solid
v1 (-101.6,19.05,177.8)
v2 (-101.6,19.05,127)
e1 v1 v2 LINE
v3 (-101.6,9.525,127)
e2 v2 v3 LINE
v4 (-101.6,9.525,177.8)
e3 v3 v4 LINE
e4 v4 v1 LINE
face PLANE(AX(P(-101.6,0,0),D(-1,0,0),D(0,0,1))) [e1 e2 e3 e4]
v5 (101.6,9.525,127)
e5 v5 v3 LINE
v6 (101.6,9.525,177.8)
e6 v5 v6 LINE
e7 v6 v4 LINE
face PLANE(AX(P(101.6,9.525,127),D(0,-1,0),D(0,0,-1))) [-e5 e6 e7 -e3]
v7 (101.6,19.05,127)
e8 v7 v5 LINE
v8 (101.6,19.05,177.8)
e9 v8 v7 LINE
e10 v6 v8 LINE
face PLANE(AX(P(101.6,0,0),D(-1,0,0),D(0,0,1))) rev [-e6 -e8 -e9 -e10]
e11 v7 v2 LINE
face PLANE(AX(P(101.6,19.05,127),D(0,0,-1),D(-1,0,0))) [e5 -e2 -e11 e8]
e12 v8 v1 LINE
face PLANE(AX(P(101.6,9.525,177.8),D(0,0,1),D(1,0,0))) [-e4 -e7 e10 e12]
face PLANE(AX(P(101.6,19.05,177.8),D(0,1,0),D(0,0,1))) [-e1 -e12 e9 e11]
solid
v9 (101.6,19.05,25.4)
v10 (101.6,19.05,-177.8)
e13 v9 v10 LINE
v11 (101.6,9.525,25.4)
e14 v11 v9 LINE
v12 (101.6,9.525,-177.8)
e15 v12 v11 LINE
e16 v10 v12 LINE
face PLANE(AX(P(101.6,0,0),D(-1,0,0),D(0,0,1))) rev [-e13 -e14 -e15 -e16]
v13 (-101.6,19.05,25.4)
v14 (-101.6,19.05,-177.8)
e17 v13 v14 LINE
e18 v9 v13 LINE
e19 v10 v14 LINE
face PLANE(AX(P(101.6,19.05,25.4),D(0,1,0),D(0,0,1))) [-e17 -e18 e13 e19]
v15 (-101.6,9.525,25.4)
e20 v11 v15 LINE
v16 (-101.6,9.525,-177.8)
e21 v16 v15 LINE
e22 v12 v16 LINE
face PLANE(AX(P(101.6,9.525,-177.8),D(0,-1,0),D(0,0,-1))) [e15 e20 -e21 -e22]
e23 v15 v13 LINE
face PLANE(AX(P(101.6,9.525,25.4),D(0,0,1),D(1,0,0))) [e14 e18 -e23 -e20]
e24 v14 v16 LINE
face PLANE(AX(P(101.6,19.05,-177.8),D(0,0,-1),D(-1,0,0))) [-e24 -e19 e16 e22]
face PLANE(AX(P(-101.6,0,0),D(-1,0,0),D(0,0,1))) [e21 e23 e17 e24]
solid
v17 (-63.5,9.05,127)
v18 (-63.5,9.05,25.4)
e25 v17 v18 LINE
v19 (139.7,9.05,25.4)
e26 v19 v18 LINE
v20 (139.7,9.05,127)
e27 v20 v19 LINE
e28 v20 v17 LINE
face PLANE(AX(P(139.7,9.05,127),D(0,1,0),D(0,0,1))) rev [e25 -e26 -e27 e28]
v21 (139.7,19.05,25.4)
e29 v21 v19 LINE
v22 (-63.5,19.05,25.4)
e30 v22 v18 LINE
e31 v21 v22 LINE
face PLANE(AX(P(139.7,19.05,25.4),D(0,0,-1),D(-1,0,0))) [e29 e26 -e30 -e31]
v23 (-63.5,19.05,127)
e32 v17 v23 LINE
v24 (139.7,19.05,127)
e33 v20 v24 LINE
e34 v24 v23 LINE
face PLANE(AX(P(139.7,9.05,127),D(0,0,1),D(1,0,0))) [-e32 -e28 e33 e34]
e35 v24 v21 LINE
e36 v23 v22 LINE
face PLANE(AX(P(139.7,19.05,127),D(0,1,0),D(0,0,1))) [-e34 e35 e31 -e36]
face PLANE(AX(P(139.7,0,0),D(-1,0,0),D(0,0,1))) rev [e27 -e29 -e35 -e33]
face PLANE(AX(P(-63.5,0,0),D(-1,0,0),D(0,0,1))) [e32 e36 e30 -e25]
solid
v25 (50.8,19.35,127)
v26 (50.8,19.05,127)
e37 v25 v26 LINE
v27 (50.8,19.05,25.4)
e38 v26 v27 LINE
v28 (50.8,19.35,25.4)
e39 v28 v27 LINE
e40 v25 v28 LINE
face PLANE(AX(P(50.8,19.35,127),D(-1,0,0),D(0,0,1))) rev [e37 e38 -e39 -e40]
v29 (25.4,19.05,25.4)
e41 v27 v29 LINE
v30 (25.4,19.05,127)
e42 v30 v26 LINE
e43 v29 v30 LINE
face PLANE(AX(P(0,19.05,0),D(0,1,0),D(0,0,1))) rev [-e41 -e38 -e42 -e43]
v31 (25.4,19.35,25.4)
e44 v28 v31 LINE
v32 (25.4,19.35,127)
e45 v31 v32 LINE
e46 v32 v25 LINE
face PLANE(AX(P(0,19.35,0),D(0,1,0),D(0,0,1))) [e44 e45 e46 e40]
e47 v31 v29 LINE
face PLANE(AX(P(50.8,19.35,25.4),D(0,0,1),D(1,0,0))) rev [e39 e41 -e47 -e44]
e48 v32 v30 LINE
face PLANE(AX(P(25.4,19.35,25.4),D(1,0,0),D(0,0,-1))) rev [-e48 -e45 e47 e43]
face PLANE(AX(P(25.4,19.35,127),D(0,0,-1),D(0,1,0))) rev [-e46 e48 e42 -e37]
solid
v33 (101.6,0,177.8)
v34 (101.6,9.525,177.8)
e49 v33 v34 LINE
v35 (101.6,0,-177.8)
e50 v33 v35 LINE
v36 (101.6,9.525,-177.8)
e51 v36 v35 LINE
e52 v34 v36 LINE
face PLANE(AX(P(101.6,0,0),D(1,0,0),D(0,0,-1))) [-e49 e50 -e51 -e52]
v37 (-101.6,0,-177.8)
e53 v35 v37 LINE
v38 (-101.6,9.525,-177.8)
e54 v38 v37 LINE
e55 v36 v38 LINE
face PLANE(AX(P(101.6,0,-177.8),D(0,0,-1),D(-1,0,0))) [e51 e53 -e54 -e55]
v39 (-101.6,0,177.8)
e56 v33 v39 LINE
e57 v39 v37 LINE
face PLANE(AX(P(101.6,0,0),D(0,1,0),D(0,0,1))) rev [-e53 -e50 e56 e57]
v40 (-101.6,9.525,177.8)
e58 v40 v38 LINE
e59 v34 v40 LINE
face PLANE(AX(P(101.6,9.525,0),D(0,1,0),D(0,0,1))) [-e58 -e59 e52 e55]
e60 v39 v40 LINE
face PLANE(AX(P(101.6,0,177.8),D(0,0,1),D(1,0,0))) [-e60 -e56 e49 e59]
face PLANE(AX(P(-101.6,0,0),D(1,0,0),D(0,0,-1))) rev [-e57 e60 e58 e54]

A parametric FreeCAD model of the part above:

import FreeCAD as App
import Part
import Sketcher
from FreeCAD import Vector
Q = App.Units.Quantity

doc = App.newDocument("Part")
body = doc.addObject("PartDesign::Body", "Body")

sketch1 = body.newObject("Sketcher::SketchObject", "Sketch")
sketch1.AttachmentSupport = (doc.getObject("YZ_Plane"), [""])
sketch1.MapMode = "FlatFace"
sketch1.addGeometry([
    Part.LineSegment(Vector(9.525, 177.8, 0), Vector(0, 177.8, 0)),
    Part.LineSegment(Vector(0, 177.8, 0), Vector(0, -177.8, 0)),
    Part.LineSegment(Vector(0, -177.8, 0), Vector(9.525, -177.8, 0)),
    Part.LineSegment(Vector(9.525, -177.8, 0), Vector(9.525, 177.8, 0)),
], False)
sketch1.addConstraint([
    Sketcher.Constraint("Coincident", 0, 2, 1, 1),
    Sketcher.Constraint("Coincident", 1, 2, 2, 1),
    Sketcher.Constraint("Coincident", 2, 2, 3, 1),
    Sketcher.Constraint("Coincident", 3, 2, 0, 1),
    Sketcher.Constraint("Horizontal", 0),
    Sketcher.Constraint("Vertical", 1),
    Sketcher.Constraint("Horizontal", 2),
    Sketcher.Constraint("Vertical", 3),
    Sketcher.Constraint("Symmetric", 0, 2, 1, 2, -1, 1),
    Sketcher.Constraint("DistanceY", 1, 2, 1, 1, Q("14 in")),
    Sketcher.Constraint("DistanceX", 0, 2, 0, 1, Q("0.375 in")),
])
pad1 = body.newObject("PartDesign::Pad", "Pad")
pad1.Profile = sketch1
pad1.Length = Q("8 in")
pad1.Midplane = True
body2 = doc.addObject("PartDesign::Body", "Body001")

sketch2 = body2.newObject("Sketcher::SketchObject", "Sketch001")
sketch2.AttachmentSupport = (doc.getObject("YZ_Plane001"), [""])
sketch2.MapMode = "FlatFace"
sketch2.addGeometry([
    Part.LineSegment(Vector(19.05, 25.4, 0), Vector(9.525, 25.4, 0)),
    Part.LineSegment(Vector(9.525, 25.4, 0), Vector(9.525, -177.8, 0)),
    Part.LineSegment(Vector(9.525, -177.8, 0), Vector(19.05, -177.8, 0)),
    Part.LineSegment(Vector(19.05, -177.8, 0), Vector(19.05, 25.4, 0)),
], False)
sketch2.addConstraint([
    Sketcher.Constraint("Coincident", 0, 2, 1, 1),
    Sketcher.Constraint("Coincident", 1, 2, 2, 1),
    Sketcher.Constraint("Coincident", 2, 2, 3, 1),
    Sketcher.Constraint("Coincident", 3, 2, 0, 1),
    Sketcher.Constraint("Horizontal", 0),
    Sketcher.Constraint("Vertical", 1),
    Sketcher.Constraint("Horizontal", 2),
    Sketcher.Constraint("Vertical", 3),
    Sketcher.Constraint("DistanceY", 1, 2, 1, 1, Q("8 in")),
    Sketcher.Constraint("DistanceY", -1, 1, 0, 2, Q("1 in")),
    Sketcher.Constraint("DistanceX", 0, 2, 0, 1, Q("0.375 in")),
    Sketcher.Constraint("DistanceX", -1, 1, 2, 2, Q("0.75 in")),
])
pad2 = body2.newObject("PartDesign::Pad", "Pad001")
pad2.Profile = sketch2
pad2.Length = Q("8 in")
pad2.Midplane = True
body3 = doc.addObject("PartDesign::Body", "Body002")

sketch3 = body3.newObject("Sketcher::SketchObject", "Sketch002")
sketch3.AttachmentSupport = (doc.getObject("YZ_Plane002"), [""])
sketch3.MapMode = "FlatFace"
sketch3.addGeometry([
    Part.LineSegment(Vector(19.05, 177.8, 0), Vector(9.525, 177.8, 0)),
    Part.LineSegment(Vector(9.525, 177.8, 0), Vector(9.525, 127, 0)),
    Part.LineSegment(Vector(9.525, 127, 0), Vector(19.05, 127, 0)),
    Part.LineSegment(Vector(19.05, 127, 0), Vector(19.05, 177.8, 0)),
], False)
sketch3.addConstraint([
    Sketcher.Constraint("Coincident", 0, 2, 1, 1),
    Sketcher.Constraint("Coincident", 1, 2, 2, 1),
    Sketcher.Constraint("Coincident", 2, 2, 3, 1),
    Sketcher.Constraint("Coincident", 3, 2, 0, 1),
    Sketcher.Constraint("Horizontal", 0),
    Sketcher.Constraint("Vertical", 1),
    Sketcher.Constraint("Horizontal", 2),
    Sketcher.Constraint("Vertical", 3),
    Sketcher.Constraint("DistanceY", 1, 2, 1, 1, Q("2 in")),
    Sketcher.Constraint("DistanceY", -1, 1, 0, 2, Q("7 in")),
    Sketcher.Constraint("DistanceX", 0, 2, 0, 1, Q("0.375 in")),
    Sketcher.Constraint("DistanceX", -1, 1, 2, 2, Q("0.75 in")),
])
pad3 = body3.newObject("PartDesign::Pad", "Pad002")
pad3.Profile = sketch3
pad3.Length = Q("8 in")
pad3.Midplane = True
body4 = doc.addObject("PartDesign::Body", "Body003")

sketch4 = body4.newObject("Sketcher::SketchObject", "Sketch003")
sketch4.AttachmentSupport = (doc.getObject("YZ_Plane003"), [""])
sketch4.MapMode = "FlatFace"
sketch4.AttachmentOffset = App.Placement(Vector(0, 0, 1.5 * 25.4), App.Rotation())
sketch4.addGeometry([
    Part.LineSegment(Vector(19.05, 127, 0), Vector(9.05, 127, 0)),
    Part.LineSegment(Vector(9.05, 127, 0), Vector(9.05, 25.4, 0)),
    Part.LineSegment(Vector(9.05, 25.4, 0), Vector(19.05, 25.4, 0)),
    Part.LineSegment(Vector(19.05, 25.4, 0), Vector(19.05, 127, 0)),
], False)
sketch4.addConstraint([
    Sketcher.Constraint("Coincident", 0, 2, 1, 1),
    Sketcher.Constraint("Coincident", 1, 2, 2, 1),
    Sketcher.Constraint("Coincident", 2, 2, 3, 1),
    Sketcher.Constraint("Coincident", 3, 2, 0, 1),
    Sketcher.Constraint("Horizontal", 0),
    Sketcher.Constraint("Vertical", 1),
    Sketcher.Constraint("Horizontal", 2),
    Sketcher.Constraint("Vertical", 3),
    Sketcher.Constraint("DistanceY", 1, 2, 1, 1, Q("4 in")),
    Sketcher.Constraint("DistanceY", -1, 1, 0, 2, Q("5 in")),
    Sketcher.Constraint("DistanceX", -1, 1, 2, 2, Q("0.75 in")),
    Sketcher.Constraint("DistanceX", 0, 2, 0, 1, 10.0),
])
pad4 = body4.newObject("PartDesign::Pad", "Pad003")
pad4.Profile = sketch4
pad4.Length = Q("8 in")
pad4.Midplane = True
body5 = doc.addObject("PartDesign::Body", "Body004")

sketch5 = body5.newObject("Sketcher::SketchObject", "Sketch004")
sketch5.AttachmentSupport = (doc.getObject("XZ_Plane004"), [""])
sketch5.MapMode = "FlatFace"
sketch5.AttachmentOffset = App.Placement(Vector(0, 0, -0.75 * 25.4), App.Rotation())
sketch5.addGeometry([
    Part.LineSegment(Vector(25.4, 25.4, 0), Vector(25.4, 127, 0)),
    Part.LineSegment(Vector(25.4, 127, 0), Vector(50.8, 127, 0)),
    Part.LineSegment(Vector(50.8, 127, 0), Vector(50.8, 25.4, 0)),
    Part.LineSegment(Vector(50.8, 25.4, 0), Vector(25.4, 25.4, 0)),
], False)
sketch5.addConstraint([
    Sketcher.Constraint("Coincident", 0, 2, 1, 1),
    Sketcher.Constraint("Coincident", 1, 2, 2, 1),
    Sketcher.Constraint("Coincident", 2, 2, 3, 1),
    Sketcher.Constraint("Coincident", 3, 2, 0, 1),
    Sketcher.Constraint("Vertical", 0),
    Sketcher.Constraint("Horizontal", 1),
    Sketcher.Constraint("Vertical", 2),
    Sketcher.Constraint("Horizontal", 3),
    Sketcher.Constraint("DistanceX", 1, 1, 1, 2, Q("1 in")),
    Sketcher.Constraint("DistanceY", 0, 1, 0, 2, Q("4 in")),
    Sketcher.Constraint("DistanceX", -1, 1, 0, 2, Q("1 in")),
    Sketcher.Constraint("DistanceY", -1, 1, 0, 2, Q("5 in")),
])
pad5 = body5.newObject("PartDesign::Pad", "Pad004")
pad5.Profile = sketch5
pad5.Length = 0.3
pad5.Reversed = True

doc.recompute()
